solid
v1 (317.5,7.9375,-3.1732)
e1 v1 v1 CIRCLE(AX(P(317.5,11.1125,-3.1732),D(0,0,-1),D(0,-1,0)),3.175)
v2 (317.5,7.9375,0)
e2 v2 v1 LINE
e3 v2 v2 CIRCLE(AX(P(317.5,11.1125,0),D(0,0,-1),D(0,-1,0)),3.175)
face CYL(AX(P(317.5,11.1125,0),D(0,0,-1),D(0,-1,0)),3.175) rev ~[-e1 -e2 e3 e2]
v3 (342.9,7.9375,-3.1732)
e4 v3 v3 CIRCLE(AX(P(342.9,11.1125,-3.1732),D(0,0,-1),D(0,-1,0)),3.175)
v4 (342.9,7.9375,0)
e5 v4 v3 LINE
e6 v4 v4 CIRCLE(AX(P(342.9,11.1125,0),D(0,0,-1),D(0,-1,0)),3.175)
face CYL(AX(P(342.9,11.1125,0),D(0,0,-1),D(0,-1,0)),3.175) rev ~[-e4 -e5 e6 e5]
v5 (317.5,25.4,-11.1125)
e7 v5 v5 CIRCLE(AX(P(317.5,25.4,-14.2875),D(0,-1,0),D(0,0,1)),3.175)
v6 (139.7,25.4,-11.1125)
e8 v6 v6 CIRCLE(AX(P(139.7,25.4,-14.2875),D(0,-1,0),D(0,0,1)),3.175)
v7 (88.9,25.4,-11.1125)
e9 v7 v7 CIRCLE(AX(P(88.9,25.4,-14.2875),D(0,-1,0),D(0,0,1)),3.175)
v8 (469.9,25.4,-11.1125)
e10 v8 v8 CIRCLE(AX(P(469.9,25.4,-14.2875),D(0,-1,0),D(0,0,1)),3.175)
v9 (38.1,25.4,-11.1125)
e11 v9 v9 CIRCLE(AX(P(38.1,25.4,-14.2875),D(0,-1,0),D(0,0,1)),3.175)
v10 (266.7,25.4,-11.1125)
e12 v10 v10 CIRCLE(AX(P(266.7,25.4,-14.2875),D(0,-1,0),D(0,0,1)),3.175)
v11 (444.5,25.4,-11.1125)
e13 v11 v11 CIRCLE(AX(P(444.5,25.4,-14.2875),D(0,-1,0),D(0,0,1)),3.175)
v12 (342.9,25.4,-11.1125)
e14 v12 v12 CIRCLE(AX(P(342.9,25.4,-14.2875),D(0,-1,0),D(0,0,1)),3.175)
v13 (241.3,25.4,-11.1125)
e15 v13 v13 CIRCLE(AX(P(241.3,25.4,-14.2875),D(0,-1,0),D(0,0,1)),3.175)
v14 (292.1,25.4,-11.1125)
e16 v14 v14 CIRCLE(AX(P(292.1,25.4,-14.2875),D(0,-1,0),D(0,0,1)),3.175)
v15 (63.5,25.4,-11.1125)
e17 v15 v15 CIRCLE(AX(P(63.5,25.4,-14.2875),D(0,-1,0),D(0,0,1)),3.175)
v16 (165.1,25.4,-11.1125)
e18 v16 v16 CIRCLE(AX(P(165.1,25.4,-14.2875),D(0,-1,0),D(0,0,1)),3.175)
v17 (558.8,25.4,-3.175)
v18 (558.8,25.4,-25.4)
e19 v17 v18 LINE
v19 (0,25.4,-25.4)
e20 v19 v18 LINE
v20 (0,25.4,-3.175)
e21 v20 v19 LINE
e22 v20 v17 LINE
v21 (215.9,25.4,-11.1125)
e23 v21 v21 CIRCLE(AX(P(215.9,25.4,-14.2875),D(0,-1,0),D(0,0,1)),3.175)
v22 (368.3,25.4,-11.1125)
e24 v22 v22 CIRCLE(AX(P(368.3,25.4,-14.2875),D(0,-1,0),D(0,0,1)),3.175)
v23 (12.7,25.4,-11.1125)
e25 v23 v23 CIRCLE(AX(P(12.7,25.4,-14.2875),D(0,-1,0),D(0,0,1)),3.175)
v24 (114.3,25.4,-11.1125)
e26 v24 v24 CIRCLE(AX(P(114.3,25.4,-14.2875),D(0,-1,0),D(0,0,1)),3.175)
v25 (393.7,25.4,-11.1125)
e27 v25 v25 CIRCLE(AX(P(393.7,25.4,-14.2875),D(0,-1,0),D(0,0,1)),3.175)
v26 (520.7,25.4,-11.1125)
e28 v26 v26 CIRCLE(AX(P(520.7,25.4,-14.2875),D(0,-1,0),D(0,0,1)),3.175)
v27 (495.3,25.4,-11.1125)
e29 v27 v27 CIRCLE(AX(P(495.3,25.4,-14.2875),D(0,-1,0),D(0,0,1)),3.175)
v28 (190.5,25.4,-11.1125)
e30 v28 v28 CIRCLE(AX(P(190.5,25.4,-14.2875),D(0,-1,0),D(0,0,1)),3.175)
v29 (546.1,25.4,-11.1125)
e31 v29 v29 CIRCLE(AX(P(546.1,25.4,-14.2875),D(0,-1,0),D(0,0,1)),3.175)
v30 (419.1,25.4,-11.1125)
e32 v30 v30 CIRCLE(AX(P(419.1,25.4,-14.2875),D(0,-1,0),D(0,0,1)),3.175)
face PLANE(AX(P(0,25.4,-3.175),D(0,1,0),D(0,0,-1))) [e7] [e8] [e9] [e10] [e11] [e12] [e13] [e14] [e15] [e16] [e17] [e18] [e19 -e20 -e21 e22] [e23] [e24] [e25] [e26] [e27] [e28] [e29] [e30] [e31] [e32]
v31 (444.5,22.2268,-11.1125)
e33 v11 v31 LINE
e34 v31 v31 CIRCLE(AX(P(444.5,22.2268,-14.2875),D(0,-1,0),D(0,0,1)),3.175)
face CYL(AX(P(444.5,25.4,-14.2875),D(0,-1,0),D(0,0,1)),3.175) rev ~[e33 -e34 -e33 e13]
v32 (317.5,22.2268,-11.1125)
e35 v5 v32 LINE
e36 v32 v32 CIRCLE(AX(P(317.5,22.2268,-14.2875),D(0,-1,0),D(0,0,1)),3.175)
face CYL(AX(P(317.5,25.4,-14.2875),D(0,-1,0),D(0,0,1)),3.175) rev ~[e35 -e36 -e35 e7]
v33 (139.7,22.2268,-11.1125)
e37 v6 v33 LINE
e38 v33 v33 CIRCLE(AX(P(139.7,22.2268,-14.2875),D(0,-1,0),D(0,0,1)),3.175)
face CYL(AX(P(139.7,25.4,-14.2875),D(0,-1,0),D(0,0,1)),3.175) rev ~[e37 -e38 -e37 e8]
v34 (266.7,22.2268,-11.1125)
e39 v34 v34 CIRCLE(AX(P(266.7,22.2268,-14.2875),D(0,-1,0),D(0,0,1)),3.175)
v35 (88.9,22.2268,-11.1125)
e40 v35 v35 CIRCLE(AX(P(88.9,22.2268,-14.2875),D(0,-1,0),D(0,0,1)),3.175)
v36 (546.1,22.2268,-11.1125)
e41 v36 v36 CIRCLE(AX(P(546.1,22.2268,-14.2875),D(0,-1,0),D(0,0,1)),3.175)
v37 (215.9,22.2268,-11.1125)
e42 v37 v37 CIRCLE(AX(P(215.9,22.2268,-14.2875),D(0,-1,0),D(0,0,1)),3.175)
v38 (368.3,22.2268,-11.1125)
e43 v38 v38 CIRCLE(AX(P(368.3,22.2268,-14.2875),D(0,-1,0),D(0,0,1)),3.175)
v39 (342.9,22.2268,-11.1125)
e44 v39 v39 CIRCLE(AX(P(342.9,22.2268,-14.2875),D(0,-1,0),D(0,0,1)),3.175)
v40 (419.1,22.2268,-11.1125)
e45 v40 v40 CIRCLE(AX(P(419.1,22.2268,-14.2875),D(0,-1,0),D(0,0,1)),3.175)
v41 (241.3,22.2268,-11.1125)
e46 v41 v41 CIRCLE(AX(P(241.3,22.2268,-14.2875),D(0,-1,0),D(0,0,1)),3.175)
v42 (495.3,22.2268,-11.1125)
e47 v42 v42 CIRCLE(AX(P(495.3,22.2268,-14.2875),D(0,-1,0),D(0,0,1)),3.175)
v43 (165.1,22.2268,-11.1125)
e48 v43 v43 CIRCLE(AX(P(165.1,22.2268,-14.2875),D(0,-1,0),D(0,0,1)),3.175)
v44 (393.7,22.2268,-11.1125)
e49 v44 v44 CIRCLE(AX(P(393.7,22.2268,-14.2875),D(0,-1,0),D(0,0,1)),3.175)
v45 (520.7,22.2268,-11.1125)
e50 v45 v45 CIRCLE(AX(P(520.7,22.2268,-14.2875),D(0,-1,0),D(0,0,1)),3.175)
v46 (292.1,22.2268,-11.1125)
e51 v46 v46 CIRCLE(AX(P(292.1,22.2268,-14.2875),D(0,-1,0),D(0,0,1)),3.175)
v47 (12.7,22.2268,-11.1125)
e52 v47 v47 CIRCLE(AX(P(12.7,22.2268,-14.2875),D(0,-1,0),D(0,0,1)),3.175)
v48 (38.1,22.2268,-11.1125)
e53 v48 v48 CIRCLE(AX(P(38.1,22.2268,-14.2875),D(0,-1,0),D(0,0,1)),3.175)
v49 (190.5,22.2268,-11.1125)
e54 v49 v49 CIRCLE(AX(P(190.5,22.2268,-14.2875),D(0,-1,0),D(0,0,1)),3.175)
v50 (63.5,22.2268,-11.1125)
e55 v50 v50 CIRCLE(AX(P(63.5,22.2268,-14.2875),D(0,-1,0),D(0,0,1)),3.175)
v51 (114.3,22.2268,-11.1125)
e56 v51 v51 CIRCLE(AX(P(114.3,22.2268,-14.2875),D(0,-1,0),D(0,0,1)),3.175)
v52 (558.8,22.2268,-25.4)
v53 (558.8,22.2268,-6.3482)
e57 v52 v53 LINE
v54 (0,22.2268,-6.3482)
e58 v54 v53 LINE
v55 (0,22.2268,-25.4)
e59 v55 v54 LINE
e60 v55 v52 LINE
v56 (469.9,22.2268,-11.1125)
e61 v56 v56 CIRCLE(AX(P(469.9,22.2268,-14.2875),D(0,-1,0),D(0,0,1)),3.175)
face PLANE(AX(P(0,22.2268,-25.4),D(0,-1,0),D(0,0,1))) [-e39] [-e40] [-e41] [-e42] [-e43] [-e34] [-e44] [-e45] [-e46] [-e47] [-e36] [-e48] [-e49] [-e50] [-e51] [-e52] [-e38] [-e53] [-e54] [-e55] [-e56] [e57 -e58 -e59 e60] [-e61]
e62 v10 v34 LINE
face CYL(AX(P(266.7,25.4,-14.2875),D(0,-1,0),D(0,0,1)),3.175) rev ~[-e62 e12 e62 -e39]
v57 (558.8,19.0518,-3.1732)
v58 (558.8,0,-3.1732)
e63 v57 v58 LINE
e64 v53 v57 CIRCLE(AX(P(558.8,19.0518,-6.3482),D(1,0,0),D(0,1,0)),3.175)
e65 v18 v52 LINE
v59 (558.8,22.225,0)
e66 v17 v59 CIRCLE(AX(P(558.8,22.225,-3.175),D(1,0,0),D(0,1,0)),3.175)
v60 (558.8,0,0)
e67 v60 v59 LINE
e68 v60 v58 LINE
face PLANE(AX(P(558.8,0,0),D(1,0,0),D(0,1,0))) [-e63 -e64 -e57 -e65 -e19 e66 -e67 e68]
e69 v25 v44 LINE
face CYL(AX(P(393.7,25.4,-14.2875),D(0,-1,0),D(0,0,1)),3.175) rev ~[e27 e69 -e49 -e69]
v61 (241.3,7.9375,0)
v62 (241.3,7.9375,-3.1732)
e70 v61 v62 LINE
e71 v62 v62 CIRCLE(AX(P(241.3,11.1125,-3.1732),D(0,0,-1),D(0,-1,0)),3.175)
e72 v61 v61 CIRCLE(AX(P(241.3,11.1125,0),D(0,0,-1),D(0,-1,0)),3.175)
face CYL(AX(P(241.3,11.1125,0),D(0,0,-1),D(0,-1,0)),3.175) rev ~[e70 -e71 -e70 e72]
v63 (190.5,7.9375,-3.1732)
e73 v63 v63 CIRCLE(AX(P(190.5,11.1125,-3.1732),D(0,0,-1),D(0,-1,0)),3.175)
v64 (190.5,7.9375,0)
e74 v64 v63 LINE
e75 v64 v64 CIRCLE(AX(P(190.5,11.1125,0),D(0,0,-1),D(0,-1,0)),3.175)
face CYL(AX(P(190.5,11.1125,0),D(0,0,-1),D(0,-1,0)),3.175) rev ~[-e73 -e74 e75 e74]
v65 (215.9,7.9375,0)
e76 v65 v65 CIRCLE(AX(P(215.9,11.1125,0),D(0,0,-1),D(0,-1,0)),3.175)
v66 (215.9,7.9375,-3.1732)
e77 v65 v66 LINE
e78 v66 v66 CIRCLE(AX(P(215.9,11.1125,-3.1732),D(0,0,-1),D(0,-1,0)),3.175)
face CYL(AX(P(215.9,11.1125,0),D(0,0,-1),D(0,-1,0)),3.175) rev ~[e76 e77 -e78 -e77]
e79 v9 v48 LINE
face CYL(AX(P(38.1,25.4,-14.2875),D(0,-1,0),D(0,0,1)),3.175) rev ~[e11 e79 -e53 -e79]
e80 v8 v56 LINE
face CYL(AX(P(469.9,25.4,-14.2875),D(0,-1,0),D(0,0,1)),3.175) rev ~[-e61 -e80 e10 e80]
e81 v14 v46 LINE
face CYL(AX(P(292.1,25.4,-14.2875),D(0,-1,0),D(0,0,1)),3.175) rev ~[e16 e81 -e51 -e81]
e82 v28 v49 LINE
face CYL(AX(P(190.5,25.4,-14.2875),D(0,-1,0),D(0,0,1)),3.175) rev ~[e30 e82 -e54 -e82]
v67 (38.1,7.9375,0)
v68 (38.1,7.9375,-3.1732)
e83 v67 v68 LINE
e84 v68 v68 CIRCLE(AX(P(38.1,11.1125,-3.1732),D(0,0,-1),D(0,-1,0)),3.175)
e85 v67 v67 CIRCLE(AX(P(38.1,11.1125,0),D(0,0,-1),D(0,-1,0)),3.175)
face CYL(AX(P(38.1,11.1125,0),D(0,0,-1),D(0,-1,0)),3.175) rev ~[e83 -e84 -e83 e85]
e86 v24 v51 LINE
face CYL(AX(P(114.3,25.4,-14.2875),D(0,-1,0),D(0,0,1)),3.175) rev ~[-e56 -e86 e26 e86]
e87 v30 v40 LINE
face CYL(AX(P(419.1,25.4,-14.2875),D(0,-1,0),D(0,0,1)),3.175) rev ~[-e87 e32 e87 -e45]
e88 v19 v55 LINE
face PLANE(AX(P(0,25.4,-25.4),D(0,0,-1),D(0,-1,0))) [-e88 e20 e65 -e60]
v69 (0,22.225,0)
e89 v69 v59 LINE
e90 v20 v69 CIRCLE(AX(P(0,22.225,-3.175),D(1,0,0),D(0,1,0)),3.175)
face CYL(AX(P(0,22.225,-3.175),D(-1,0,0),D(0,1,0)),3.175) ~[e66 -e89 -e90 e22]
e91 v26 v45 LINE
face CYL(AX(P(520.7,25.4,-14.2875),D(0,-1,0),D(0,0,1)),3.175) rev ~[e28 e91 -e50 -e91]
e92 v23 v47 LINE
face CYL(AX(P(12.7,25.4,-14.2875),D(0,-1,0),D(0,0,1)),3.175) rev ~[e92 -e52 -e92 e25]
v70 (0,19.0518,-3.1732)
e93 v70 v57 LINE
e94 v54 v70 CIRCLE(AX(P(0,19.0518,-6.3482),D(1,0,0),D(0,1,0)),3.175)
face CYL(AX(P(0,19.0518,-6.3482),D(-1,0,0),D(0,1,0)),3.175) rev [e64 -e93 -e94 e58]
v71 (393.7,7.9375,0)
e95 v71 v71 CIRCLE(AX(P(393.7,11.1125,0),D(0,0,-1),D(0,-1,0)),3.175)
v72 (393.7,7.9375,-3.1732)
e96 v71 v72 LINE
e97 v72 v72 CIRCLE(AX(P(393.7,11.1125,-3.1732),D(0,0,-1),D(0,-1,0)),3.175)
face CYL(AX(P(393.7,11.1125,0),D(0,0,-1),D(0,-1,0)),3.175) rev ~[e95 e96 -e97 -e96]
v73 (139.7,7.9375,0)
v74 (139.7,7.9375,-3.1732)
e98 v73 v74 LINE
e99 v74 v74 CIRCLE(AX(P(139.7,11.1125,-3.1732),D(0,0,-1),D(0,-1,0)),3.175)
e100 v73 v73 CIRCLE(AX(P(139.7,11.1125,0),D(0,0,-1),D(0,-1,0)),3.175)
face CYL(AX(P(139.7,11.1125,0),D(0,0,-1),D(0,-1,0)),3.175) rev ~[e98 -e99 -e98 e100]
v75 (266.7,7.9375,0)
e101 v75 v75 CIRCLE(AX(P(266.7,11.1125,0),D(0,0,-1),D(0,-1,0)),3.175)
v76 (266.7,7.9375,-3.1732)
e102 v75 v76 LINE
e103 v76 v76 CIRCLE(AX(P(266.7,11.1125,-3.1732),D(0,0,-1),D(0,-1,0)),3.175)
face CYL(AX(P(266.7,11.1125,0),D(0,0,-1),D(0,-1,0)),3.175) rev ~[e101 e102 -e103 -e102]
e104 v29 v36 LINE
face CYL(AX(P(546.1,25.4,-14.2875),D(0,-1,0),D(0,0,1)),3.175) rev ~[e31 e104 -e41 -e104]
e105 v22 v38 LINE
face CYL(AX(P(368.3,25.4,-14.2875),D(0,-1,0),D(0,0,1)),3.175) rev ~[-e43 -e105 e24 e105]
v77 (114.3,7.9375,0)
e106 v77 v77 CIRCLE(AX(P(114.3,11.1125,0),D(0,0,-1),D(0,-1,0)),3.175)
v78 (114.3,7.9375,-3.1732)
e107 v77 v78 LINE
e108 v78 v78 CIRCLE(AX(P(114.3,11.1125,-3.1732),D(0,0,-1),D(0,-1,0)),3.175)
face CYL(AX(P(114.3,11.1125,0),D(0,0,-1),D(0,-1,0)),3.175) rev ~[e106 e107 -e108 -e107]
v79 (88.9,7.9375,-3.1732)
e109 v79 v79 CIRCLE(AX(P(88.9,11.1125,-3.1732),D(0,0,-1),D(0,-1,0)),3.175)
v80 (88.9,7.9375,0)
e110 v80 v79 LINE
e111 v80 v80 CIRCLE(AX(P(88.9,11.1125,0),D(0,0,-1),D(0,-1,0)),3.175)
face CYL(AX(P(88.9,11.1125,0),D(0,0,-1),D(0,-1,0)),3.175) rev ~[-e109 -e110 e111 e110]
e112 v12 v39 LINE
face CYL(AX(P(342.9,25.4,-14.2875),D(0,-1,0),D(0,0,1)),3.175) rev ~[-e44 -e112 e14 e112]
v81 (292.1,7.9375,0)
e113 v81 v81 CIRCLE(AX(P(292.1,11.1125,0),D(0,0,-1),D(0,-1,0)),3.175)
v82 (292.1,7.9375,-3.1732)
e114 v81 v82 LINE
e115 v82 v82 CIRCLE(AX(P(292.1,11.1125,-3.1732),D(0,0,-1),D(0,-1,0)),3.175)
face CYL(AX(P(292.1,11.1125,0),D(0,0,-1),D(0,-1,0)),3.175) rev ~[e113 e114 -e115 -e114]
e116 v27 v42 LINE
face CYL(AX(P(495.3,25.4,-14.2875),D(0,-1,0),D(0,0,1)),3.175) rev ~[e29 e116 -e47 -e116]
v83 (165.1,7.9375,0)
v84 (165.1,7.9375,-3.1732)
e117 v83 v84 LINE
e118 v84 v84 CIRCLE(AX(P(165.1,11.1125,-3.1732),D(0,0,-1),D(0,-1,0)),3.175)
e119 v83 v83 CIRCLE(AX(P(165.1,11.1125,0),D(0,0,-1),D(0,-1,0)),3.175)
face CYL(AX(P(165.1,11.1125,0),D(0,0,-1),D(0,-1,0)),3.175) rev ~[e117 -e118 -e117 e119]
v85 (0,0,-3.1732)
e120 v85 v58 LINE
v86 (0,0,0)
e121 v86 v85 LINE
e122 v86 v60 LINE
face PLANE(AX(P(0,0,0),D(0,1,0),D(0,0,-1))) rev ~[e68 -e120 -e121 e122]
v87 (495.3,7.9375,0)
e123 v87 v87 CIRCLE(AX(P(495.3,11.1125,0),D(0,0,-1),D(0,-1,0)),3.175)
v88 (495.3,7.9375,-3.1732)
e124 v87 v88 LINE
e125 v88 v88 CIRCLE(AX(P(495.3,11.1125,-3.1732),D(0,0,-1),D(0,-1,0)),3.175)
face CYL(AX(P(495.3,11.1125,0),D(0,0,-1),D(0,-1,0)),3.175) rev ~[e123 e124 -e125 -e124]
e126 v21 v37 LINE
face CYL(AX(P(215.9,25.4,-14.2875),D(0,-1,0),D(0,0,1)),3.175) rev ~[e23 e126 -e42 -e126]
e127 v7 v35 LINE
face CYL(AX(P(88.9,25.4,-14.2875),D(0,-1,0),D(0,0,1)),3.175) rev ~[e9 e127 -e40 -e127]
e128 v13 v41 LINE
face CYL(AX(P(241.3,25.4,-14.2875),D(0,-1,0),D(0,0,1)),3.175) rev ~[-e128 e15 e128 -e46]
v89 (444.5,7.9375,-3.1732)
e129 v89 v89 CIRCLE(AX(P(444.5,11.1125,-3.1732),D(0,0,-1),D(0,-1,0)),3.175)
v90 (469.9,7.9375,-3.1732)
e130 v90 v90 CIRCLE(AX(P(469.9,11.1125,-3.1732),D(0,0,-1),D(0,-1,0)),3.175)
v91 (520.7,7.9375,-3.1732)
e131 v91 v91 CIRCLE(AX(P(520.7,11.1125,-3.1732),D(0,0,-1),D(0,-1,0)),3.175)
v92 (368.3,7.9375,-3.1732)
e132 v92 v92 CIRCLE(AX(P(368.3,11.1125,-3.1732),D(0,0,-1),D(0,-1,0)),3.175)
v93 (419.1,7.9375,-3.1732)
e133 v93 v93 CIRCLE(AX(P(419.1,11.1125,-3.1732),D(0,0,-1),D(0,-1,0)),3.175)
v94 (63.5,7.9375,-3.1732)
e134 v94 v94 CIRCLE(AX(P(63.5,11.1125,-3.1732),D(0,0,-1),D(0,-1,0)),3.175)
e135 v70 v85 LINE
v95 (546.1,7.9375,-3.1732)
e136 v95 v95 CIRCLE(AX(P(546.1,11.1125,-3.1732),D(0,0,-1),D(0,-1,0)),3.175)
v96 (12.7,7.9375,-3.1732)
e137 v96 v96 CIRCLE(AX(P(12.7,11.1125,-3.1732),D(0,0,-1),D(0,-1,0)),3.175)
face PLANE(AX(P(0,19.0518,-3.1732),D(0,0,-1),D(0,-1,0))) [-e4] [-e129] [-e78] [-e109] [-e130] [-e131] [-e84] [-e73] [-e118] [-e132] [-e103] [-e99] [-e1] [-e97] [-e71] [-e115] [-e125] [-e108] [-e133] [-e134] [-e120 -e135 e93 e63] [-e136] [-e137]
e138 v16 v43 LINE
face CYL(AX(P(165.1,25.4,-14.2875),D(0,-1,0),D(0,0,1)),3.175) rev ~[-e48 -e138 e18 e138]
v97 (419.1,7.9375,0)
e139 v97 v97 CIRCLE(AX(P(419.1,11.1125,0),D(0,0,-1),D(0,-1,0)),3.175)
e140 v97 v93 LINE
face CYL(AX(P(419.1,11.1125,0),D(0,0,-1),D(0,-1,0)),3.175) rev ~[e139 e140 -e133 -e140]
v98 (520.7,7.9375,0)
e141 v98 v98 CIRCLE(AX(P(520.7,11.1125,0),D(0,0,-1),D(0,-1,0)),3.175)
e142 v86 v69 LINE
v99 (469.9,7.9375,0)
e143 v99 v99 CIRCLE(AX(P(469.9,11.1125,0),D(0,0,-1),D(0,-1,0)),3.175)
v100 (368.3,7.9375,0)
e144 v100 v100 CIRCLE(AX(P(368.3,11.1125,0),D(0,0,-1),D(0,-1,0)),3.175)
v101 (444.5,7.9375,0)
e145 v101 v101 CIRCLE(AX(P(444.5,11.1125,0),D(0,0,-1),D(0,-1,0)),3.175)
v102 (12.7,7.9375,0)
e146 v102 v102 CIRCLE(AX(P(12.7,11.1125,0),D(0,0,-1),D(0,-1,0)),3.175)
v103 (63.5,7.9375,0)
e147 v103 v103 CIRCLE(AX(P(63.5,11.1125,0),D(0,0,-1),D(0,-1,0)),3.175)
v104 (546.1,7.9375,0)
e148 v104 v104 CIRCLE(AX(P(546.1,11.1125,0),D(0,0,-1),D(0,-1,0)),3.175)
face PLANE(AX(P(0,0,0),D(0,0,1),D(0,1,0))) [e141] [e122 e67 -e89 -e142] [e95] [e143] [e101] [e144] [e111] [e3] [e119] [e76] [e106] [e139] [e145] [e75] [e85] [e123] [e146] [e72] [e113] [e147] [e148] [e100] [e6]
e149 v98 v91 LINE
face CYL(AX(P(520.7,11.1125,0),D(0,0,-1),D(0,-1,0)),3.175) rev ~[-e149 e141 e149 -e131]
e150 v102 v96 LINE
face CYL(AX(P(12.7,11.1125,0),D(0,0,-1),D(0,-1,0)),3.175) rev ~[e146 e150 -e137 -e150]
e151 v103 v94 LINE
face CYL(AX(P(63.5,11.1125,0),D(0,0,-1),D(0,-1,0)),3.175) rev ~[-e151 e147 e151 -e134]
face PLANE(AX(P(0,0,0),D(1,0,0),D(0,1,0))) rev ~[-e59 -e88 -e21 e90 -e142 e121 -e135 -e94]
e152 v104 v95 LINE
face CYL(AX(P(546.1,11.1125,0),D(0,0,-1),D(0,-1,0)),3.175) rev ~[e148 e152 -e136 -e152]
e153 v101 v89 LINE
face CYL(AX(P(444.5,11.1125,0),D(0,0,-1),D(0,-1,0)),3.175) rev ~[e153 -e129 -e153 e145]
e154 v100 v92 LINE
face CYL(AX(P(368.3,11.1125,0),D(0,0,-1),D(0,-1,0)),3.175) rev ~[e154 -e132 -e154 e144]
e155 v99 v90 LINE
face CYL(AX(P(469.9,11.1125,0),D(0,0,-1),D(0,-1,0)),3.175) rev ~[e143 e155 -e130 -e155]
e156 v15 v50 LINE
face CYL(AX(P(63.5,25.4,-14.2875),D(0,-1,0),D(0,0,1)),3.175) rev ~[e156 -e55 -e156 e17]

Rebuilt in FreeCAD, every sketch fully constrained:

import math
import FreeCAD as App
import Part
import Sketcher
Q = App.Units.Quantity

doc = App.newDocument("Part")
body = doc.addObject("PartDesign::Body", "Body")

# Sketch on YZ plane
sketch1 = body.newObject("Sketcher::SketchObject", "Sketch")
sketch1.AttachmentSupport = (doc.getObject("YZ_Plane"), [""])
sketch1.MapMode = "FlatFace"
sketch1.addGeometry(Part.LineSegment(App.Vector(22.2, 0, 0), App.Vector(0, 0, 0)), False)
sketch1.addGeometry(Part.LineSegment(App.Vector(0, 0, 0), App.Vector(0, -3.2, 0)), False)
sketch1.addGeometry(Part.LineSegment(App.Vector(0, -3.2, 0), App.Vector(19.1, -3.2, 0)), False)
sketch1.addGeometry(Part.ArcOfCircle(Part.Circle(App.Vector(19.1, -6.3, 0), App.Vector(0, 0, 1), 3.2), math.radians(0), math.radians(90)), False)
sketch1.addGeometry(Part.LineSegment(App.Vector(22.2, -6.3, 0), App.Vector(22.2, -25.4, 0)), False)
sketch1.addGeometry(Part.LineSegment(App.Vector(22.2, -25.4, 0), App.Vector(25.4, -25.4, 0)), False)
sketch1.addGeometry(Part.LineSegment(App.Vector(25.4, -25.4, 0), App.Vector(25.4, -3.2, 0)), False)
sketch1.addGeometry(Part.ArcOfCircle(Part.Circle(App.Vector(22.2, -3.2, 0), App.Vector(0, 0, 1), 3.2), math.radians(0), math.radians(90)), False)
sketch1.addConstraint(Sketcher.Constraint("Coincident", 0, 2, 1, 1))
sketch1.addConstraint(Sketcher.Constraint("Coincident", 1, 2, 2, 1))
sketch1.addConstraint(Sketcher.Constraint("Tangent", 2, 2, 3, 2))
sketch1.addConstraint(Sketcher.Constraint("Tangent", 3, 1, 4, 1))
sketch1.addConstraint(Sketcher.Constraint("Coincident", 4, 2, 5, 1))
sketch1.addConstraint(Sketcher.Constraint("Coincident", 5, 2, 6, 1))
sketch1.addConstraint(Sketcher.Constraint("Tangent", 6, 2, 7, 1))
sketch1.addConstraint(Sketcher.Constraint("Tangent", 7, 2, 0, 1))
sketch1.addConstraint(Sketcher.Constraint("Horizontal", 0))
sketch1.addConstraint(Sketcher.Constraint("Vertical", 1))
sketch1.addConstraint(Sketcher.Constraint("Horizontal", 2))
sketch1.addConstraint(Sketcher.Constraint("Vertical", 4))
sketch1.addConstraint(Sketcher.Constraint("Horizontal", 5))
sketch1.addConstraint(Sketcher.Constraint("Vertical", 6))
sketch1.addConstraint(Sketcher.Constraint("Coincident", 0, 2, -1, 1))
sketch1.addConstraint(Sketcher.Constraint("Equal", 3, 7))
sketch1.addConstraint(Sketcher.Constraint("Equal", 5, 1))
sketch1.addConstraint(Sketcher.Constraint("Equal", 2, 4))
sketch1.addConstraint(Sketcher.Constraint("DistanceY", 4, 2, -1, 1, Q("1 in")))
sketch1.addConstraint(Sketcher.Constraint("Radius", 3, Q("0.125 in")))
sketch1.addConstraint(Sketcher.Constraint("DistanceX", 2, 1, 2, 2, 19.0518))
pad1 = body.newObject("PartDesign::Pad", "Pad")
pad1.Profile = sketch1
pad1.Length = Q("22 in")

# Sketch on XY plane
sketch2 = body.newObject("Sketcher::SketchObject", "Sketch001")
sketch2.AttachmentSupport = (doc.getObject("XY_Plane"), [""])
sketch2.MapMode = "FlatFace"
sketch2.addGeometry(Part.Circle(App.Vector(12.7, 11.1, 0), App.Vector(0, 0, 1), 3.2), False)
sketch2.addConstraint(Sketcher.Constraint("Diameter", 0, Q("0.25 in")))
sketch2.addConstraint(Sketcher.Constraint("DistanceX", -1, 1, 0, 3, Q("0.5 in")))
sketch2.addConstraint(Sketcher.Constraint("DistanceY", -1, 1, 0, 3, Q("0.4375 in")))
doc.recompute()
hole = body.newObject("PartDesign::Hole", "Hole")
hole.Profile = sketch2
hole.ThreadType = "None"
hole.Diameter = Q("0.25 in")
hole.DepthType = "ThroughAll"
doc.recompute()

linearpattern = body.newObject("PartDesign::LinearPattern", "LinearPattern")
linearpattern.Originals = [hole]
linearpattern.Direction = (doc.getObject("X_Axis"), [""])
linearpattern.Mode = "offset"
linearpattern.Offset = Q("1 in")
linearpattern.Occurrences = 24
body.Tip = linearpattern

# Sketch on XZ plane
sketch3 = body.newObject("Sketcher::SketchObject", "Sketch002")
sketch3.AttachmentSupport = (doc.getObject("XZ_Plane"), [""])
sketch3.MapMode = "FlatFace"
sketch3.AttachmentOffset = App.Placement(App.Vector(0, 0, -1 * 25.4), App.Rotation())
sketch3.addGeometry(Part.Circle(App.Vector(12.7, -14.3, 0), App.Vector(0, 0, 1), 3.2), False)
sketch3.addConstraint(Sketcher.Constraint("Diameter", 0, Q("0.25 in")))
sketch3.addConstraint(Sketcher.Constraint("DistanceX", -1, 1, 0, 3, Q("0.5 in")))
sketch3.addConstraint(Sketcher.Constraint("DistanceY", 0, 3, -1, 1, Q("0.5625 in")))
doc.recompute()
hole2 = body.newObject("PartDesign::Hole", "Hole001")
hole2.Profile = sketch3
hole2.ThreadType = "None"
hole2.Diameter = Q("0.25 in")
hole2.DepthType = "ThroughAll"
hole2.Reversed = True
doc.recompute()

linearpattern2 = body.newObject("PartDesign::LinearPattern", "LinearPattern001")
linearpattern2.Originals = [hole2]
linearpattern2.Direction = (doc.getObject("X_Axis"), [""])
linearpattern2.Mode = "offset"
linearpattern2.Offset = Q("1 in")
linearpattern2.Occurrences = 24
body.Tip = linearpattern2

doc.recompute()
